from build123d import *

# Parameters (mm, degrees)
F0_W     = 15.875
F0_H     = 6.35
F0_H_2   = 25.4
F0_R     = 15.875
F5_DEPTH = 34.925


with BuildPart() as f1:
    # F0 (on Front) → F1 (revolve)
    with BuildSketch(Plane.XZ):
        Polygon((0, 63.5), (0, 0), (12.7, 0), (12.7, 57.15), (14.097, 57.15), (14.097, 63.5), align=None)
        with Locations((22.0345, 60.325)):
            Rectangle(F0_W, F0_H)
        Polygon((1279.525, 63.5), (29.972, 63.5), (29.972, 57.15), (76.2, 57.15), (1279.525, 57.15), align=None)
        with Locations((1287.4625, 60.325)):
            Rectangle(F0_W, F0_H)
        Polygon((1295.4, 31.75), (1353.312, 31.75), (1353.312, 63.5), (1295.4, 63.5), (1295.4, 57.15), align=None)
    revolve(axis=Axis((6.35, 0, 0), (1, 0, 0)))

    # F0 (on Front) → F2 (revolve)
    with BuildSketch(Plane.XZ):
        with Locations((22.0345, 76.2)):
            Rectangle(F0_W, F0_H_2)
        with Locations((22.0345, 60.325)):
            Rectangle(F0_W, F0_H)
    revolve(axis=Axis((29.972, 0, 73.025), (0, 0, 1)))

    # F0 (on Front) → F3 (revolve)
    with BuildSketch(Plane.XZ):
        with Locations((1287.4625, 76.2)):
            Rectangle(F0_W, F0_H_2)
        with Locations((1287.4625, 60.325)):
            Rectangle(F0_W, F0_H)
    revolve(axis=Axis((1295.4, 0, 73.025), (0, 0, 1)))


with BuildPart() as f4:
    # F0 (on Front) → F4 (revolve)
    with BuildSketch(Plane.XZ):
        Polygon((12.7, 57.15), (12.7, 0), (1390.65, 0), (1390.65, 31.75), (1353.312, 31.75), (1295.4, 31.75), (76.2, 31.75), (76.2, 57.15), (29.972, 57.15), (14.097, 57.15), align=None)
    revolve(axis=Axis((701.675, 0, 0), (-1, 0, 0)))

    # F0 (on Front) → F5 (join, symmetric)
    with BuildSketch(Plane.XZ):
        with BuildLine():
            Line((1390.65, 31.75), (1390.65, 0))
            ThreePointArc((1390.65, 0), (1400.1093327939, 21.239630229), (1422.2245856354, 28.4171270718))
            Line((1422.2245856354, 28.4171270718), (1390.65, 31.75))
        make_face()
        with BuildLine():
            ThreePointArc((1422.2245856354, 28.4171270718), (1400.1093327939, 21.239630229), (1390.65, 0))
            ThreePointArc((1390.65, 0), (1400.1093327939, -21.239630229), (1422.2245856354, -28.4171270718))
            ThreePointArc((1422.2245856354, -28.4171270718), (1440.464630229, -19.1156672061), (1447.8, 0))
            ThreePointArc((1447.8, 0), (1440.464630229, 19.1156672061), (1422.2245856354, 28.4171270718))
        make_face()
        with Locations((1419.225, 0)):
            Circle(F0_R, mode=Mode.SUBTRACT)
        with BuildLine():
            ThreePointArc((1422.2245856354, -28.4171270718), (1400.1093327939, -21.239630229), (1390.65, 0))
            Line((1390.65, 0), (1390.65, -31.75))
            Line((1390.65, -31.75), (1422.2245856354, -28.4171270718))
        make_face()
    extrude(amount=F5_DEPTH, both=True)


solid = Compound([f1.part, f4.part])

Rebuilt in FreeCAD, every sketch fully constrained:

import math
import FreeCAD as App
import Part
import Sketcher

V = App.Vector
Q = App.Units.Quantity

doc = App.newDocument("Part")
body = doc.addObject("PartDesign::Body", "Body")

sketch1 = doc.addObject("Sketcher::SketchObject", "Sketch")
body.addObject(sketch1)
sketch1.AttachmentSupport = (doc.XZ_Plane, [""])
sketch1.MapMode = "FlatFace"
sketch1.addGeometry([
    Part.LineSegment(V(0, 63.5, 0), V(0, 0, 0)),
    Part.LineSegment(V(0, 0, 0), V(12.7, 0, 0)),
    Part.LineSegment(V(12.7, 0, 0), V(12.7, 57.15, 0)),
    Part.LineSegment(V(12.7, 57.15, 0), V(1295.4, 57.15, 0)),
    Part.LineSegment(V(1295.4, 57.15, 0), V(1295.4, 31.75, 0)),
    Part.LineSegment(V(1295.4, 31.75, 0), V(1353.312, 31.75, 0)),
    Part.LineSegment(V(1353.312, 31.75, 0), V(1353.312, 63.5, 0)),
    Part.LineSegment(V(1353.312, 63.5, 0), V(0, 63.5, 0)),
], False)
sketch1.addConstraint([
    Sketcher.Constraint("Coincident", 0, 2, 1, 1),
    Sketcher.Constraint("Coincident", 1, 2, 2, 1),
    Sketcher.Constraint("Coincident", 2, 2, 3, 1),
    Sketcher.Constraint("Coincident", 3, 2, 4, 1),
    Sketcher.Constraint("Coincident", 4, 2, 5, 1),
    Sketcher.Constraint("Coincident", 5, 2, 6, 1),
    Sketcher.Constraint("Coincident", 6, 2, 7, 1),
    Sketcher.Constraint("Coincident", 7, 2, 0, 1),
    Sketcher.Constraint("Vertical", 0),
    Sketcher.Constraint("Horizontal", 1),
    Sketcher.Constraint("Vertical", 2),
    Sketcher.Constraint("Horizontal", 3),
    Sketcher.Constraint("Vertical", 4),
    Sketcher.Constraint("Horizontal", 5),
    Sketcher.Constraint("Vertical", 6),
    Sketcher.Constraint("Horizontal", 7),
    Sketcher.Constraint("Coincident", 0, 2, -1, 1),
    Sketcher.Constraint("DistanceY", 4, 2, 4, 1, Q("1 in")),
    Sketcher.Constraint("DistanceX", 1, 1, 1, 2, Q("0.5 in")),
    Sketcher.Constraint("DistanceX", 3, 1, 3, 2, Q("50.5 in")),
    Sketcher.Constraint("DistanceY", 0, 2, 0, 1, Q("2.5 in")),
    Sketcher.Constraint("DistanceX", 5, 1, 5, 2, Q("2.28 in")),
    Sketcher.Constraint("DistanceY", 2, 1, 2, 2, Q("2.25 in")),
])
revolution = doc.addObject("PartDesign::Revolution", "Revolution")
body.addObject(revolution)
revolution.Profile = sketch1
revolution.ReferenceAxis = (sketch1, ["H_Axis"])
revolution.Angle = 360

sketch2 = doc.addObject("Sketcher::SketchObject", "Sketch001")
body.addObject(sketch2)
sketch2.AttachmentSupport = (doc.XZ_Plane, [""])
sketch2.MapMode = "FlatFace"
sketch2.addGeometry([
    Part.LineSegment(V(14.097, 88.9, 0), V(14.097, 57.15, 0)),
    Part.LineSegment(V(14.097, 57.15, 0), V(29.972, 57.15, 0)),
    Part.LineSegment(V(29.972, 57.15, 0), V(29.972, 88.9, 0)),
    Part.LineSegment(V(29.972, 88.9, 0), V(14.097, 88.9, 0)),
], False)
sketch2.addGeometry(Part.LineSegment(V(29.972, 57.15, 0), V(29.972, 88.9, 0)), True)
sketch2.addConstraint([
    Sketcher.Constraint("Coincident", 0, 2, 1, 1),
    Sketcher.Constraint("Coincident", 1, 2, 2, 1),
    Sketcher.Constraint("Coincident", 2, 2, 3, 1),
    Sketcher.Constraint("Coincident", 3, 2, 0, 1),
    Sketcher.Constraint("Vertical", 0),
    Sketcher.Constraint("Horizontal", 1),
    Sketcher.Constraint("Vertical", 2),
    Sketcher.Constraint("Horizontal", 3),
    Sketcher.Constraint("Vertical", 4),
    Sketcher.Constraint("Coincident", 4, 1, 1, 2),
    Sketcher.Constraint("Horizontal", 3, 2, 4, 2),
    Sketcher.Constraint("DistanceY", 0, 2, 0, 1, Q("1.25 in")),
    Sketcher.Constraint("DistanceY", -1, 1, 2, 2, Q("3.5 in")),
    Sketcher.Constraint("DistanceX", 1, 1, 1, 2, Q("0.625 in")),
    Sketcher.Constraint("DistanceX", -1, 1, 1, 2, Q("1.18 in")),
])
revolution2 = doc.addObject("PartDesign::Revolution", "Revolution001")
body.addObject(revolution2)
revolution2.Profile = sketch2
revolution2.ReferenceAxis = (sketch2, ["Axis0"])
revolution2.Angle = 360

sketch3 = doc.addObject("Sketcher::SketchObject", "Sketch002")
body.addObject(sketch3)
sketch3.AttachmentSupport = (doc.XZ_Plane, [""])
sketch3.MapMode = "FlatFace"
sketch3.addGeometry([
    Part.LineSegment(V(1279.525, 88.9, 0), V(1279.525, 57.15, 0)),
    Part.LineSegment(V(1279.525, 57.15, 0), V(1295.4, 57.15, 0)),
    Part.LineSegment(V(1295.4, 57.15, 0), V(1295.4, 88.9, 0)),
    Part.LineSegment(V(1295.4, 88.9, 0), V(1279.525, 88.9, 0)),
], False)
sketch3.addGeometry(Part.LineSegment(V(1295.4, 57.15, 0), V(1295.4, 88.9, 0)), True)
sketch3.addConstraint([
    Sketcher.Constraint("Coincident", 0, 2, 1, 1),
    Sketcher.Constraint("Coincident", 1, 2, 2, 1),
    Sketcher.Constraint("Coincident", 2, 2, 3, 1),
    Sketcher.Constraint("Coincident", 3, 2, 0, 1),
    Sketcher.Constraint("Vertical", 0),
    Sketcher.Constraint("Horizontal", 1),
    Sketcher.Constraint("Vertical", 2),
    Sketcher.Constraint("Horizontal", 3),
    Sketcher.Constraint("Vertical", 4),
    Sketcher.Constraint("Coincident", 4, 1, 1, 2),
    Sketcher.Constraint("Horizontal", 3, 2, 4, 2),
    Sketcher.Constraint("DistanceX", -1, 1, 1, 2, Q("51 in")),
    Sketcher.Constraint("DistanceY", 0, 2, 0, 1, Q("1.25 in")),
    Sketcher.Constraint("DistanceY", -1, 1, 2, 2, Q("3.5 in")),
    Sketcher.Constraint("DistanceX", 1, 1, 1, 2, Q("0.625 in")),
])
revolution3 = doc.addObject("PartDesign::Revolution", "Revolution002")
body.addObject(revolution3)
revolution3.Profile = sketch3
revolution3.ReferenceAxis = (sketch3, ["Axis0"])
revolution3.Angle = 360
body2 = doc.addObject("PartDesign::Body", "Body001")

sketch4 = doc.addObject("Sketcher::SketchObject", "Sketch003")
body2.addObject(sketch4)
sketch4.AttachmentSupport = (doc.getObject("XZ_Plane001"), [""])
sketch4.MapMode = "FlatFace"
sketch4.addGeometry([
    Part.LineSegment(V(12.7, 57.15, 0), V(12.7, 0, 0)),
    Part.LineSegment(V(12.7, 0, 0), V(1390.65, 0, 0)),
    Part.LineSegment(V(1390.65, 0, 0), V(1390.65, 31.75, 0)),
    Part.LineSegment(V(1390.65, 31.75, 0), V(76.2, 31.75, 0)),
    Part.LineSegment(V(76.2, 31.75, 0), V(76.2, 57.15, 0)),
    Part.LineSegment(V(76.2, 57.15, 0), V(12.7, 57.15, 0)),
], False)
sketch4.addConstraint([
    Sketcher.Constraint("Coincident", 0, 2, 1, 1),
    Sketcher.Constraint("Coincident", 1, 2, 2, 1),
    Sketcher.Constraint("Coincident", 2, 2, 3, 1),
    Sketcher.Constraint("Coincident", 3, 2, 4, 1),
    Sketcher.Constraint("Coincident", 4, 2, 5, 1),
    Sketcher.Constraint("Coincident", 5, 2, 0, 1),
    Sketcher.Constraint("Vertical", 0),
    Sketcher.Constraint("Horizontal", 1),
    Sketcher.Constraint("Vertical", 2),
    Sketcher.Constraint("Horizontal", 3),
    Sketcher.Constraint("Vertical", 4),
    Sketcher.Constraint("Horizontal", 5),
    Sketcher.Constraint("PointOnObject", 0, 2, -1),
    Sketcher.Constraint("DistanceY", 4, 1, 4, 2, Q("1 in")),
    Sketcher.Constraint("DistanceX", 5, 2, 5, 1, Q("2.5 in")),
    Sketcher.Constraint("DistanceX", -1, 1, 3, 2, Q("3 in")),
    Sketcher.Constraint("DistanceX", 1, 1, 1, 2, Q("54.25 in")),
    Sketcher.Constraint("DistanceY", 0, 2, 0, 1, Q("2.25 in")),
])
revolution4 = doc.addObject("PartDesign::Revolution", "Revolution003")
body2.addObject(revolution4)
revolution4.Profile = sketch4
revolution4.ReferenceAxis = (sketch4, ["H_Axis"])
revolution4.Angle = 360

sketch5 = doc.addObject("Sketcher::SketchObject", "Sketch004")
body2.addObject(sketch5)
sketch5.AttachmentSupport = (doc.getObject("XZ_Plane001"), [""])
sketch5.MapMode = "FlatFace"
sketch5.addGeometry([
    Part.LineSegment(V(1390.65, 31.75, 0), V(1390.65, -31.75, 0)),
    Part.LineSegment(V(1390.65, -31.75, 0), V(1422.224586, -28.417127, 0)),
    Part.ArcOfCircle(Part.Circle(V(1419.225, 0, 0), V(0, 0, 1), 28.575), math.radians(-83.974425), math.radians(0)),
    Part.ArcOfCircle(Part.Circle(V(1419.225, 0, 0), V(0, 0, 1), 28.575), math.radians(0), math.radians(83.974425)),
    Part.LineSegment(V(1422.224586, 28.417127, 0), V(1390.65, 31.75, 0)),
    Part.Circle(V(1419.225, 0, 0), V(0, 0, 1), 15.875),
], False)
sketch5.addConstraint([
    Sketcher.Constraint("Coincident", 0, 2, 1, 1),
    Sketcher.Constraint("Tangent", 1, 2, 2, 1),
    Sketcher.Constraint("Tangent", 2, 2, 3, 1),
    Sketcher.Constraint("Tangent", 3, 2, 4, 1),
    Sketcher.Constraint("Coincident", 4, 2, 0, 1),
    Sketcher.Constraint("Vertical", 0),
    Sketcher.Constraint("Coincident", 5, 3, 2, 3),
    Sketcher.Constraint("Equal", 2, 3),
    Sketcher.Constraint("Symmetric", 1, 2, 3, 2, -1),
    Sketcher.Constraint("PointOnObject", 2, 2, -1),
    Sketcher.Constraint("Diameter", 5, Q("1.25 in")),
    Sketcher.Constraint("DistanceY", 0, 2, 0, 1, Q("2.5 in")),
    Sketcher.Constraint("DistanceX", -1, 1, 2, 2, Q("57 in")),
    Sketcher.Constraint("Radius", 2, Q("1.125 in")),
    Sketcher.Constraint("Distance", 1, Q("1.25 in")),
])
pad1 = doc.addObject("PartDesign::Pad", "Pad")
body2.addObject(pad1)
pad1.Profile = sketch5
pad1.Length = Q("2.75 in")
pad1.Midplane = True

doc.recompute()
